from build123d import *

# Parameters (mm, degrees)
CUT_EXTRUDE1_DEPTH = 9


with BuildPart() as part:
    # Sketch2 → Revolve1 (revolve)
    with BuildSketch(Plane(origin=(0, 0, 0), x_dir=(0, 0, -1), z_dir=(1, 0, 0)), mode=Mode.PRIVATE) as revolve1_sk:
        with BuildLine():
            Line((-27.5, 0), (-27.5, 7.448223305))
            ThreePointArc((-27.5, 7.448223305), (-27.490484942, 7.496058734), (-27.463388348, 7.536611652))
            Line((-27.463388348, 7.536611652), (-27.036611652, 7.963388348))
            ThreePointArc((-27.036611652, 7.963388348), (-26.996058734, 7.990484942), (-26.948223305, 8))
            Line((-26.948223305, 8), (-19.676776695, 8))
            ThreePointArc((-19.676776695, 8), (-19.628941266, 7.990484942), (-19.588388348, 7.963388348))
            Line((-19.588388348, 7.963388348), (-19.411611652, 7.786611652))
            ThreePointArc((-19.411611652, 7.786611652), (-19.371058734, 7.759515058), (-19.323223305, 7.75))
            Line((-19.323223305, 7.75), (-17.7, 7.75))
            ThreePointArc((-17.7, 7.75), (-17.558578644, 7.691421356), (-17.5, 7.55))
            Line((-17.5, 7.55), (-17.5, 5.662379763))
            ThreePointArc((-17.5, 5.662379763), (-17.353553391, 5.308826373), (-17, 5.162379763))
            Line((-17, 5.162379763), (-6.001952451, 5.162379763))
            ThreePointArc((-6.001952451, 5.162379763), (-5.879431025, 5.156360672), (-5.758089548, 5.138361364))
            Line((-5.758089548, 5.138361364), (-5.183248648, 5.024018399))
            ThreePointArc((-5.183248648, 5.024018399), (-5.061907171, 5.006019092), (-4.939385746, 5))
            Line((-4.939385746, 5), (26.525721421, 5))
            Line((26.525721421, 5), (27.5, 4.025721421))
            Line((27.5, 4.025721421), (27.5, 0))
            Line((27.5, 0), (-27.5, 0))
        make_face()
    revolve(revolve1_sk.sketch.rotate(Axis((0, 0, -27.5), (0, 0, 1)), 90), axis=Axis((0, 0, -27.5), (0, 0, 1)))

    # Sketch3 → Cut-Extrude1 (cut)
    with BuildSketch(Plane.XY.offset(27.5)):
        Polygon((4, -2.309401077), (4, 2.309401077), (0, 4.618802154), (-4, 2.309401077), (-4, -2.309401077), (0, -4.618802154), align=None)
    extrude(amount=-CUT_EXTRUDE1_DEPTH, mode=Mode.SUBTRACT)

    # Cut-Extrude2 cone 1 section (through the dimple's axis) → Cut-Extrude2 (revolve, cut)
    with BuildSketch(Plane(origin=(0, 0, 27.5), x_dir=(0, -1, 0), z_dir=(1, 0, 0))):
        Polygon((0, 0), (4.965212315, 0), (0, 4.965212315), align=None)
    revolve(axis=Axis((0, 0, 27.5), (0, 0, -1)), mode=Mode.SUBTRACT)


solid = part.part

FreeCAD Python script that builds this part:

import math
import FreeCAD as App
import Part
import Sketcher

V = App.Vector
Q = App.Units.Quantity

doc = App.newDocument("Part")
params = doc.addObject("Spreadsheet::Sheet", "Params")
for row, (alias, value) in enumerate([
    ("sketch1_radius", "0.5 mm"),
    ("sketch1_radius2", "0.2 mm"),
    ("sketch1_height", "55 mm"),
    ("sketch1_radius3", "1.25 mm"),
    ("revolution_angle", "360 deg"),
    ("pocket1_length", "9 mm"),
    ("groove_angle", "360 deg"),
], start=1):
    params.set(f"A{row}", alias)
    params.set(f"B{row}", "=" + value)
    params.setAlias(f"B{row}", alias)

body = doc.addObject("PartDesign::Body", "Body")

# Sketch on YZ plane
sketch1 = doc.addObject("Sketcher::SketchObject", "Sketch")
body.addObject(sketch1)
sketch1.AttachmentSupport = (doc.YZ_Plane, [""])
sketch1.MapMode = "FlatFace"
sketch1.addGeometry([
    Part.LineSegment(V(7.448223, 27.5, 0), V(0, 27.5, 0)),  # 0
    Part.LineSegment(V(0, 27.5, 0), V(0, -27.5, 0)),  # 1
    Part.LineSegment(V(0, -27.5, 0), V(4.025721, -27.5, 0)),  # 2
    Part.LineSegment(V(4.025721, -27.5, 0), V(5, -26.525721, 0)),  # 3
    Part.LineSegment(V(5, -26.525721, 0), V(5, 4.939386, 0)),  # 4
    Part.ArcOfCircle(Part.Circle(V(6.25, 4.939386, 0), V(0, 0, 1), 1.25), math.radians(168.750001), math.radians(180)),  # 5
    Part.LineSegment(V(5.024018, 5.183249, 0), V(5.138361, 5.75809, 0)),  # 6
    Part.ArcOfCircle(Part.Circle(V(3.91238, 6.001952, 0), V(0, 0, 1), 1.25), math.radians(-11.25), math.radians(0.000001)),  # 7
    Part.LineSegment(V(5.16238, 6.001952, 0), V(5.16238, 17, 0)),  # 8
    Part.ArcOfCircle(Part.Circle(V(5.66238, 17, 0), V(0, 0, 1), 0.5), math.radians(90), math.radians(180)),  # 9
    Part.LineSegment(V(5.66238, 17.5, 0), V(7.55, 17.5, 0)),  # 10
    Part.ArcOfCircle(Part.Circle(V(7.55, 17.7, 0), V(0, 0, 1), 0.2), math.radians(-90), math.radians(0)),  # 11
    Part.LineSegment(V(7.75, 17.7, 0), V(7.75, 19.323223, 0)),  # 12
    Part.ArcOfCircle(Part.Circle(V(7.875, 19.323223, 0), V(0, 0, 1), 0.125), math.radians(134.999999), math.radians(180.000001)),  # 13
    Part.LineSegment(V(7.786612, 19.411612, 0), V(7.963388, 19.588388, 0)),  # 14
    Part.ArcOfCircle(Part.Circle(V(7.875, 19.676777, 0), V(0, 0, 1), 0.125), math.radians(-45.000001), math.radians(0.000001)),  # 15
    Part.LineSegment(V(8, 19.676777, 0), V(8, 26.948223, 0)),  # 16
    Part.ArcOfCircle(Part.Circle(V(7.875, 26.948223, 0), V(0, 0, 1), 0.125), math.radians(-0.000001), math.radians(45.000001)),  # 17
    Part.LineSegment(V(7.963388, 27.036612, 0), V(7.536612, 27.463388, 0)),  # 18
    Part.ArcOfCircle(Part.Circle(V(7.448223, 27.375, 0), V(0, 0, 1), 0.125), math.radians(44.999999), math.radians(90.000001)),  # 19
], False)
sketch1.addConstraint([
    Sketcher.Constraint("Coincident", 0, 2, 1, 1),
    Sketcher.Constraint("Coincident", 1, 2, 2, 1),
    Sketcher.Constraint("Coincident", 2, 2, 3, 1),
    Sketcher.Constraint("Coincident", 3, 2, 4, 1),
    Sketcher.Constraint("Tangent", 4, 2, 5, 2),
    Sketcher.Constraint("Tangent", 5, 1, 6, 1),
    Sketcher.Constraint("Tangent", 6, 2, 7, 1),
    Sketcher.Constraint("Tangent", 7, 2, 8, 1),
    Sketcher.Constraint("Tangent", 8, 2, 9, 2),
    Sketcher.Constraint("Tangent", 9, 1, 10, 1),
    Sketcher.Constraint("Tangent", 10, 2, 11, 1),
    Sketcher.Constraint("Tangent", 11, 2, 12, 1),
    Sketcher.Constraint("Tangent", 12, 2, 13, 2),
    Sketcher.Constraint("Tangent", 13, 1, 14, 1),
    Sketcher.Constraint("Tangent", 14, 2, 15, 1),
    Sketcher.Constraint("Tangent", 15, 2, 16, 1),
    Sketcher.Constraint("Tangent", 16, 2, 17, 1),
    Sketcher.Constraint("Tangent", 17, 2, 18, 1),
    Sketcher.Constraint("Tangent", 18, 2, 19, 1),
    Sketcher.Constraint("Tangent", 19, 2, 0, 1),
    Sketcher.Constraint("Horizontal", 0),
    Sketcher.Constraint("Vertical", 1),
    Sketcher.Constraint("Horizontal", 2),
    Sketcher.Constraint("Vertical", 4),
    Sketcher.Constraint("Vertical", 8),
    Sketcher.Constraint("Horizontal", 10),
    Sketcher.Constraint("Vertical", 12),
    Sketcher.Constraint("Vertical", 16),
    Sketcher.Constraint("Equal", 5, 7),
    Sketcher.Constraint("Equal", 13, 15),
    Sketcher.Constraint("Equal", 15, 17),
    Sketcher.Constraint("Equal", 17, 19),
    Sketcher.Constraint("Symmetric", 0, 2, 1, 2, -1, 1),
    Sketcher.Constraint("Parallel", 3, 14),
    Sketcher.Constraint("Perpendicular", 14, 18),
    Sketcher.Constraint("Vertical", 13, 3, 15, 3),
    Sketcher.Constraint("Vertical", 14, 2, 17, 2),
    Sketcher.Constraint("Radius", 9, Q("0.5 mm")),
    Sketcher.Constraint("Radius", 11, Q("0.2 mm")),
    Sketcher.Constraint("DistanceY", 1, 2, 1, 1, Q("55 mm")),
    Sketcher.Constraint("Radius", 5, Q("1.25 mm")),
    Sketcher.Constraint("DistanceY", -1, 1, 9, 3, Q("17 mm")),
    Sketcher.Constraint("DistanceX", -1, 1, 3, 2, Q("5 mm")),
    Sketcher.Constraint("DistanceX", -1, 1, 15, 2, Q("8 mm")),
    Sketcher.Constraint("Radius", 13, Q("0.125 mm")),
    Sketcher.Constraint("Angle", 6, Q("78.75 deg")),
    Sketcher.Constraint("DistanceY", 13, 3, 17, 3, Q("7.625 mm")),
    Sketcher.Constraint("DistanceX", 2, 1, 2, 2, Q("4.025721 mm")),
    Sketcher.Constraint("DistanceX", 10, 1, 10, 2, Q("1.88762 mm")),
    Sketcher.Constraint("DistanceX", 0, 2, 0, 1, Q("7.448223 mm")),
    Sketcher.Constraint("DistanceY", 4, 1, 4, 2, Q("31.465107 mm")),
])
sketch1.setExpression("Constraints[37]", "Params.sketch1_radius")
sketch1.setExpression("Constraints[38]", "Params.sketch1_radius2")
sketch1.setExpression("Constraints[39]", "Params.sketch1_height")
sketch1.setExpression("Constraints[40]", "Params.sketch1_radius3")
revolution = doc.addObject("PartDesign::Revolution", "Revolution")
body.addObject(revolution)
revolution.Profile = sketch1
revolution.ReferenceAxis = (sketch1, ["V_Axis"])
revolution.setExpression("Angle", "Params.revolution_angle")

# Sketch on XY plane
sketch2 = doc.addObject("Sketcher::SketchObject", "Sketch001")
body.addObject(sketch2)
sketch2.AttachmentSupport = (doc.XY_Plane, [""])
sketch2.MapMode = "FlatFace"
sketch2.AttachmentOffset = App.Placement(V(0, 0, 27.5), App.Rotation())
sketch2.addGeometry([
    Part.LineSegment(V(4, -2.309401, 0), V(4, 2.309401, 0)),  # 0
    Part.LineSegment(V(4, 2.309401, 0), V(0, 4.618802, 0)),  # 1
    Part.LineSegment(V(0, 4.618802, 0), V(-4, 2.309401, 0)),  # 2
    Part.LineSegment(V(-4, 2.309401, 0), V(-4, -2.309401, 0)),  # 3
    Part.LineSegment(V(-4, -2.309401, 0), V(0, -4.618802, 0)),  # 4
    Part.LineSegment(V(0, -4.618802, 0), V(4, -2.309401, 0)),  # 5
], False)
sketch2.addConstraint([
    Sketcher.Constraint("Coincident", 0, 2, 1, 1),
    Sketcher.Constraint("Coincident", 1, 2, 2, 1),
    Sketcher.Constraint("Coincident", 2, 2, 3, 1),
    Sketcher.Constraint("Coincident", 3, 2, 4, 1),
    Sketcher.Constraint("Coincident", 4, 2, 5, 1),
    Sketcher.Constraint("Coincident", 5, 2, 0, 1),
    Sketcher.Constraint("Vertical", 0),
    Sketcher.Constraint("Vertical", 3),
    Sketcher.Constraint("Symmetric", 0, 2, 3, 2, -1, 1),
    Sketcher.Constraint("Symmetric", 1, 2, 4, 2, -1, 1),
    Sketcher.Constraint("PointOnObject", 1, 2, -2),
    Sketcher.Constraint("Parallel", 2, 5),
    Sketcher.Constraint("Horizontal", 0, 2, 2, 2),
    Sketcher.Constraint("Angle", 1, Q("150 deg")),
    Sketcher.Constraint("DistanceX", -1, 1, 0, 2, Q("4 mm")),
    Sketcher.Constraint("DistanceY", -1, 1, 0, 2, Q("2.309401 mm")),
])
pocket1 = doc.addObject("PartDesign::Pocket", "Pocket")
body.addObject(pocket1)
pocket1.Profile = sketch2
pocket1.setExpression("Length", "Params.pocket1_length")

# Sketch on YZ plane
sketch3 = doc.addObject("Sketcher::SketchObject", "Sketch002")
body.addObject(sketch3)
sketch3.AttachmentSupport = (doc.YZ_Plane, [""])
sketch3.MapMode = "FlatFace"
sketch3.addGeometry([
    Part.LineSegment(V(0, 27.5, 0), V(-4.965212, 27.5, 0)),
    Part.LineSegment(V(-4.965212, 27.5, 0), V(0, 22.534788, 0)),
    Part.LineSegment(V(0, 22.534788, 0), V(0, 27.5, 0)),
], False)
sketch3.addConstraint([
    Sketcher.Constraint("Coincident", 0, 2, 1, 1),
    Sketcher.Constraint("Coincident", 1, 2, 2, 1),
    Sketcher.Constraint("Coincident", 2, 2, 0, 1),
    Sketcher.Constraint("Horizontal", 0),
    Sketcher.Constraint("Vertical", 2),
    Sketcher.Constraint("PointOnObject", 1, 2, -2),
    Sketcher.Constraint("Equal", 0, 2),
    Sketcher.Constraint("DistanceY", -1, 1, 0, 2, Q("27.5 mm")),
    Sketcher.Constraint("Distance", 1, Q("7.021871 mm")),
])
groove = doc.addObject("PartDesign::Groove", "Groove")
body.addObject(groove)
groove.Profile = sketch3
groove.ReferenceAxis = (sketch3, ["V_Axis"])
groove.setExpression("Angle", "Params.groove_angle")

doc.recompute()
